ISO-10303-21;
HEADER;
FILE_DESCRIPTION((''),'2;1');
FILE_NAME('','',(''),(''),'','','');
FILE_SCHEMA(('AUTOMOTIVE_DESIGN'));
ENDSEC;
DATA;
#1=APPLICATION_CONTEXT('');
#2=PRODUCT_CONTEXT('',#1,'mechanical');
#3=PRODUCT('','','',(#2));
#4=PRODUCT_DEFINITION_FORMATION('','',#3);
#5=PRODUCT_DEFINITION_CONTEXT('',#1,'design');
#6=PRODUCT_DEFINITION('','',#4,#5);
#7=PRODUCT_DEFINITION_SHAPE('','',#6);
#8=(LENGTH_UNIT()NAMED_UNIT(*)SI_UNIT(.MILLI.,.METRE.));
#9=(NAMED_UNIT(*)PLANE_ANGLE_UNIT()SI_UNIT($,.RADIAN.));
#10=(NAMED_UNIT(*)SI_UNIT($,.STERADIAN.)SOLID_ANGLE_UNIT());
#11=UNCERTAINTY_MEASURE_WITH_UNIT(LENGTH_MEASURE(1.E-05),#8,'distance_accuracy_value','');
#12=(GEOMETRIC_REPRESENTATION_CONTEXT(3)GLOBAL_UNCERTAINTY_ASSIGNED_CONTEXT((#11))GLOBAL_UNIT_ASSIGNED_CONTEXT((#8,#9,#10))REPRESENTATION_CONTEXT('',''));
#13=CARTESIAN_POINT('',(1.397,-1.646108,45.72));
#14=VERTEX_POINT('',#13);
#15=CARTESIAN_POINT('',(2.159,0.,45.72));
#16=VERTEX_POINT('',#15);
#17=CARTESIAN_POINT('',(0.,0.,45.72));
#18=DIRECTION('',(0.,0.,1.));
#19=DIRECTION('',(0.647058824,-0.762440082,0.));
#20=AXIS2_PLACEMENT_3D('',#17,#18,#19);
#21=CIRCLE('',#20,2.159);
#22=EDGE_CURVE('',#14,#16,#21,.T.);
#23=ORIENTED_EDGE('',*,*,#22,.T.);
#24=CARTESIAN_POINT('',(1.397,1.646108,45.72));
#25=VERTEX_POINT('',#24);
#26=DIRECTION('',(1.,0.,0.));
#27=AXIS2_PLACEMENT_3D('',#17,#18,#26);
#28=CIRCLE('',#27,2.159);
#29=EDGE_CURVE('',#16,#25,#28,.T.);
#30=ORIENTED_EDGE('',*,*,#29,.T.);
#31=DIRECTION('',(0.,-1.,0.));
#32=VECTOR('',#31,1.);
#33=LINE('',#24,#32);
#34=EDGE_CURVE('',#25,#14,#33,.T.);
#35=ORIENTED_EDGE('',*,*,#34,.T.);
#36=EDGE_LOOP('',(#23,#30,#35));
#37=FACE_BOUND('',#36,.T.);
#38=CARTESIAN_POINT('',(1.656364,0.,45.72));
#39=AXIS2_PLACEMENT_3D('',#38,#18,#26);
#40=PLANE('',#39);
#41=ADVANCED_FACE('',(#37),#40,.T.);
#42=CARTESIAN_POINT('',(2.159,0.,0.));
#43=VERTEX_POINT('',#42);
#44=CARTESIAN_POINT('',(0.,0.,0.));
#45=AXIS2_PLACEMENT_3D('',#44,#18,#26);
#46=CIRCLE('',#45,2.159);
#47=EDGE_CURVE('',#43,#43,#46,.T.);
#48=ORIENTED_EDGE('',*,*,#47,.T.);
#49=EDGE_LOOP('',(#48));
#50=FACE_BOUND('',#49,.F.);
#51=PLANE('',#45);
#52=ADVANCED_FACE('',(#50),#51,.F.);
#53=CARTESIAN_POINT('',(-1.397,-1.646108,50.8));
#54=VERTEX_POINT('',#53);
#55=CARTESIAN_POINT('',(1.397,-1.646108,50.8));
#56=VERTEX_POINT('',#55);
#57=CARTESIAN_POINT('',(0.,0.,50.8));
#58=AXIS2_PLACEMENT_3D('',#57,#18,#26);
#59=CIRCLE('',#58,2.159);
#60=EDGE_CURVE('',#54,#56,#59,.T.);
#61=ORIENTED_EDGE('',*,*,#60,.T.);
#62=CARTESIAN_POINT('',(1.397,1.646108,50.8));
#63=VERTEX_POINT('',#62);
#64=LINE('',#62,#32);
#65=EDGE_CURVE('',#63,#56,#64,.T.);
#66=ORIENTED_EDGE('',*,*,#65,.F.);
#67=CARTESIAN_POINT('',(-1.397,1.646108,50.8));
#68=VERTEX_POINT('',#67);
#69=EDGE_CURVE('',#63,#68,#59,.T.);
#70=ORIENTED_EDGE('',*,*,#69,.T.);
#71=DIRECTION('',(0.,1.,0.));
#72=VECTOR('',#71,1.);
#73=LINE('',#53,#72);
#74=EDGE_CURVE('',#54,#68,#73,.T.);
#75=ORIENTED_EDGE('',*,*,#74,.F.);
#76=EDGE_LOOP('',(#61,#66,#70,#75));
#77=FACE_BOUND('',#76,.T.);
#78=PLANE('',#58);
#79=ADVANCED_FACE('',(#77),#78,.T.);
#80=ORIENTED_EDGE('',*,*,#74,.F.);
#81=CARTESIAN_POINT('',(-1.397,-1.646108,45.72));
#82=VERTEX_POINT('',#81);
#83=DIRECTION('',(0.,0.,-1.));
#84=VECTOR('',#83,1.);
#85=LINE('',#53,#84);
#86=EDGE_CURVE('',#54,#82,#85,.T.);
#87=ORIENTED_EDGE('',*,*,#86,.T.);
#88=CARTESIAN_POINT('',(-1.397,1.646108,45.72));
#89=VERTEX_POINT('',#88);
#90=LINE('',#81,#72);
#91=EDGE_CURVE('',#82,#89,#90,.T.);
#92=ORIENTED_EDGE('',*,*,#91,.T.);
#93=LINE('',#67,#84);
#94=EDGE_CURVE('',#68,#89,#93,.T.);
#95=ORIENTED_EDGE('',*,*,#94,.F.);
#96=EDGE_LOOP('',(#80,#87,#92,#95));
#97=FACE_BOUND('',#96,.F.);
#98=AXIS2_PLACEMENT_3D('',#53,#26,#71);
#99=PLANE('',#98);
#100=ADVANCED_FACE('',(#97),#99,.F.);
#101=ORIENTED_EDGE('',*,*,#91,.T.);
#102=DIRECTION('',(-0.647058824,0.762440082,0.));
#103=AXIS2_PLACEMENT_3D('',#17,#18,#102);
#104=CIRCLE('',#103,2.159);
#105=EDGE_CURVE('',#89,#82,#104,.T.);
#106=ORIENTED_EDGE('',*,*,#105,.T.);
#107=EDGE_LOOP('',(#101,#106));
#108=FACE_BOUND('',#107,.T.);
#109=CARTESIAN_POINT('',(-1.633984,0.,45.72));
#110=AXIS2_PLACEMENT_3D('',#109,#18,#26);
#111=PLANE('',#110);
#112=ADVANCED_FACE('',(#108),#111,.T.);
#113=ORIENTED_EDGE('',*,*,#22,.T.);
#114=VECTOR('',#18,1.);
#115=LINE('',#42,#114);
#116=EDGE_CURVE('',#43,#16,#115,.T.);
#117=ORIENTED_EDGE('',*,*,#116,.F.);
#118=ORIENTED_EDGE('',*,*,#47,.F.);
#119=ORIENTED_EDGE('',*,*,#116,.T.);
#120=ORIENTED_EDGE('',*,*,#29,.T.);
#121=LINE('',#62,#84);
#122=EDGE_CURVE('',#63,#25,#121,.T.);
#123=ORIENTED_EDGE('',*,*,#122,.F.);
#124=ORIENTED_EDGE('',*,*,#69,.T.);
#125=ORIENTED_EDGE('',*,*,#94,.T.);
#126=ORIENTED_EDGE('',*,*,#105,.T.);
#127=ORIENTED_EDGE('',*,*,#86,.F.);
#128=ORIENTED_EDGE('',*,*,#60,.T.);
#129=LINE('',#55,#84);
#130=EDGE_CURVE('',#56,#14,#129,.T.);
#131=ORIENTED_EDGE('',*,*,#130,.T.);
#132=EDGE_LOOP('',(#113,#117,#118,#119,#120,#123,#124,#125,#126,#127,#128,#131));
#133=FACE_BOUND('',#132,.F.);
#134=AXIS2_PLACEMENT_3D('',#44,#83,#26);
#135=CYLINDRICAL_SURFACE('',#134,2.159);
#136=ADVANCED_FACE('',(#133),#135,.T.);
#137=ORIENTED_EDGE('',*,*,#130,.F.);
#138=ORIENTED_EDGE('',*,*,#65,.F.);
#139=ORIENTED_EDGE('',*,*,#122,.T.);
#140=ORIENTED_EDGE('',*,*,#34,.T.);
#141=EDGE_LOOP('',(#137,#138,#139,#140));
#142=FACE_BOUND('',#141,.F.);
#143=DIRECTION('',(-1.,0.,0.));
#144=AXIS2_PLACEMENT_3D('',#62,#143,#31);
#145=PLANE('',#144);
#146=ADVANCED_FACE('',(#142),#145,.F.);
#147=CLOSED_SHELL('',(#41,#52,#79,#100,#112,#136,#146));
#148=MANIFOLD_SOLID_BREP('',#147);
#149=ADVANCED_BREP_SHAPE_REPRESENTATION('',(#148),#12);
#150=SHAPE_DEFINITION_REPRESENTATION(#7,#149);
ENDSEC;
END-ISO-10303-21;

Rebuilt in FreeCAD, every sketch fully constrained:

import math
import FreeCAD as App
import Part
import Sketcher

V = App.Vector
Q = App.Units.Quantity

doc = App.newDocument("Part")
body = doc.addObject("PartDesign::Body", "Body")

sketch1 = body.newObject("Sketcher::SketchObject", "Sketch")
sketch1.AttachmentSupport = (doc.getObject("XY_Plane"), [""])
sketch1.MapMode = "FlatFace"
sketch1.addGeometry(Part.Circle(V(0, 0, 0), V(0, 0, 1), 2.2), False)
sketch1.addConstraint(Sketcher.Constraint("Coincident", 0, 3, -1, 1))
sketch1.addConstraint(Sketcher.Constraint("Diameter", 0, Q("0.17 in")))
pad1 = body.newObject("PartDesign::Pad", "Pad")
pad1.Profile = sketch1
pad1.Length = Q("2 in")

sketch2 = body.newObject("Sketcher::SketchObject", "Sketch001")
sketch2.AttachmentSupport = (doc.getObject("XY_Plane"), [""])
sketch2.MapMode = "FlatFace"
sketch2.AttachmentOffset = App.Placement(V(0, 0, 2 * 25.4), App.Rotation())
sketch2.addGeometry(Part.ArcOfCircle(Part.Circle(V(0, 0, 0), V(0, 0, 1), 2.2), math.radians(0), math.radians(50)), False)
sketch2.addGeometry(Part.LineSegment(V(1.4, 1.6, 0), V(1.4, -1.6, 0)), False)
sketch2.addGeometry(Part.ArcOfCircle(Part.Circle(V(0, 0, 0), V(0, 0, 1), 2.2), math.radians(-50), math.radians(0)), False)
sketch2.addGeometry(Part.LineSegment(V(-1.4, -1.6, 0), V(-1.4, 1.6, 0)), False)
sketch2.addGeometry(Part.ArcOfCircle(Part.Circle(V(0, 0, 0), V(0, 0, 1), 2.2), math.radians(130), math.radians(230)), False)
sketch2.addConstraint(Sketcher.Constraint("Coincident", 0, 2, 1, 1))
sketch2.addConstraint(Sketcher.Constraint("Coincident", 1, 2, 2, 1))
sketch2.addConstraint(Sketcher.Constraint("Tangent", 2, 2, 0, 1))
sketch2.addConstraint(Sketcher.Constraint("Coincident", 3, 1, 4, 2))
sketch2.addConstraint(Sketcher.Constraint("Coincident", 4, 1, 3, 2))
sketch2.addConstraint(Sketcher.Constraint("Vertical", 1))
sketch2.addConstraint(Sketcher.Constraint("Vertical", 3))
sketch2.addConstraint(Sketcher.Constraint("Coincident", 0, 3, -1, 1))
sketch2.addConstraint(Sketcher.Constraint("Coincident", 4, 3, -1, 1))
sketch2.addConstraint(Sketcher.Constraint("Equal", 0, 2))
sketch2.addConstraint(Sketcher.Constraint("Equal", 2, 4))
sketch2.addConstraint(Sketcher.Constraint("PointOnObject", 2, 2, -1))
sketch2.addConstraint(Sketcher.Constraint("Horizontal", 1, 2, 3, 1))
sketch2.addConstraint(Sketcher.Constraint("Radius", 0, Q("0.085 in")))
sketch2.addConstraint(Sketcher.Constraint("DistanceX", 1, 2, 2, 2, Q("0.03 in")))
pocket1 = body.newObject("PartDesign::Pocket", "Pocket")
pocket1.Profile = sketch2
pocket1.Length = Q("0.2 in")

doc.recompute()
